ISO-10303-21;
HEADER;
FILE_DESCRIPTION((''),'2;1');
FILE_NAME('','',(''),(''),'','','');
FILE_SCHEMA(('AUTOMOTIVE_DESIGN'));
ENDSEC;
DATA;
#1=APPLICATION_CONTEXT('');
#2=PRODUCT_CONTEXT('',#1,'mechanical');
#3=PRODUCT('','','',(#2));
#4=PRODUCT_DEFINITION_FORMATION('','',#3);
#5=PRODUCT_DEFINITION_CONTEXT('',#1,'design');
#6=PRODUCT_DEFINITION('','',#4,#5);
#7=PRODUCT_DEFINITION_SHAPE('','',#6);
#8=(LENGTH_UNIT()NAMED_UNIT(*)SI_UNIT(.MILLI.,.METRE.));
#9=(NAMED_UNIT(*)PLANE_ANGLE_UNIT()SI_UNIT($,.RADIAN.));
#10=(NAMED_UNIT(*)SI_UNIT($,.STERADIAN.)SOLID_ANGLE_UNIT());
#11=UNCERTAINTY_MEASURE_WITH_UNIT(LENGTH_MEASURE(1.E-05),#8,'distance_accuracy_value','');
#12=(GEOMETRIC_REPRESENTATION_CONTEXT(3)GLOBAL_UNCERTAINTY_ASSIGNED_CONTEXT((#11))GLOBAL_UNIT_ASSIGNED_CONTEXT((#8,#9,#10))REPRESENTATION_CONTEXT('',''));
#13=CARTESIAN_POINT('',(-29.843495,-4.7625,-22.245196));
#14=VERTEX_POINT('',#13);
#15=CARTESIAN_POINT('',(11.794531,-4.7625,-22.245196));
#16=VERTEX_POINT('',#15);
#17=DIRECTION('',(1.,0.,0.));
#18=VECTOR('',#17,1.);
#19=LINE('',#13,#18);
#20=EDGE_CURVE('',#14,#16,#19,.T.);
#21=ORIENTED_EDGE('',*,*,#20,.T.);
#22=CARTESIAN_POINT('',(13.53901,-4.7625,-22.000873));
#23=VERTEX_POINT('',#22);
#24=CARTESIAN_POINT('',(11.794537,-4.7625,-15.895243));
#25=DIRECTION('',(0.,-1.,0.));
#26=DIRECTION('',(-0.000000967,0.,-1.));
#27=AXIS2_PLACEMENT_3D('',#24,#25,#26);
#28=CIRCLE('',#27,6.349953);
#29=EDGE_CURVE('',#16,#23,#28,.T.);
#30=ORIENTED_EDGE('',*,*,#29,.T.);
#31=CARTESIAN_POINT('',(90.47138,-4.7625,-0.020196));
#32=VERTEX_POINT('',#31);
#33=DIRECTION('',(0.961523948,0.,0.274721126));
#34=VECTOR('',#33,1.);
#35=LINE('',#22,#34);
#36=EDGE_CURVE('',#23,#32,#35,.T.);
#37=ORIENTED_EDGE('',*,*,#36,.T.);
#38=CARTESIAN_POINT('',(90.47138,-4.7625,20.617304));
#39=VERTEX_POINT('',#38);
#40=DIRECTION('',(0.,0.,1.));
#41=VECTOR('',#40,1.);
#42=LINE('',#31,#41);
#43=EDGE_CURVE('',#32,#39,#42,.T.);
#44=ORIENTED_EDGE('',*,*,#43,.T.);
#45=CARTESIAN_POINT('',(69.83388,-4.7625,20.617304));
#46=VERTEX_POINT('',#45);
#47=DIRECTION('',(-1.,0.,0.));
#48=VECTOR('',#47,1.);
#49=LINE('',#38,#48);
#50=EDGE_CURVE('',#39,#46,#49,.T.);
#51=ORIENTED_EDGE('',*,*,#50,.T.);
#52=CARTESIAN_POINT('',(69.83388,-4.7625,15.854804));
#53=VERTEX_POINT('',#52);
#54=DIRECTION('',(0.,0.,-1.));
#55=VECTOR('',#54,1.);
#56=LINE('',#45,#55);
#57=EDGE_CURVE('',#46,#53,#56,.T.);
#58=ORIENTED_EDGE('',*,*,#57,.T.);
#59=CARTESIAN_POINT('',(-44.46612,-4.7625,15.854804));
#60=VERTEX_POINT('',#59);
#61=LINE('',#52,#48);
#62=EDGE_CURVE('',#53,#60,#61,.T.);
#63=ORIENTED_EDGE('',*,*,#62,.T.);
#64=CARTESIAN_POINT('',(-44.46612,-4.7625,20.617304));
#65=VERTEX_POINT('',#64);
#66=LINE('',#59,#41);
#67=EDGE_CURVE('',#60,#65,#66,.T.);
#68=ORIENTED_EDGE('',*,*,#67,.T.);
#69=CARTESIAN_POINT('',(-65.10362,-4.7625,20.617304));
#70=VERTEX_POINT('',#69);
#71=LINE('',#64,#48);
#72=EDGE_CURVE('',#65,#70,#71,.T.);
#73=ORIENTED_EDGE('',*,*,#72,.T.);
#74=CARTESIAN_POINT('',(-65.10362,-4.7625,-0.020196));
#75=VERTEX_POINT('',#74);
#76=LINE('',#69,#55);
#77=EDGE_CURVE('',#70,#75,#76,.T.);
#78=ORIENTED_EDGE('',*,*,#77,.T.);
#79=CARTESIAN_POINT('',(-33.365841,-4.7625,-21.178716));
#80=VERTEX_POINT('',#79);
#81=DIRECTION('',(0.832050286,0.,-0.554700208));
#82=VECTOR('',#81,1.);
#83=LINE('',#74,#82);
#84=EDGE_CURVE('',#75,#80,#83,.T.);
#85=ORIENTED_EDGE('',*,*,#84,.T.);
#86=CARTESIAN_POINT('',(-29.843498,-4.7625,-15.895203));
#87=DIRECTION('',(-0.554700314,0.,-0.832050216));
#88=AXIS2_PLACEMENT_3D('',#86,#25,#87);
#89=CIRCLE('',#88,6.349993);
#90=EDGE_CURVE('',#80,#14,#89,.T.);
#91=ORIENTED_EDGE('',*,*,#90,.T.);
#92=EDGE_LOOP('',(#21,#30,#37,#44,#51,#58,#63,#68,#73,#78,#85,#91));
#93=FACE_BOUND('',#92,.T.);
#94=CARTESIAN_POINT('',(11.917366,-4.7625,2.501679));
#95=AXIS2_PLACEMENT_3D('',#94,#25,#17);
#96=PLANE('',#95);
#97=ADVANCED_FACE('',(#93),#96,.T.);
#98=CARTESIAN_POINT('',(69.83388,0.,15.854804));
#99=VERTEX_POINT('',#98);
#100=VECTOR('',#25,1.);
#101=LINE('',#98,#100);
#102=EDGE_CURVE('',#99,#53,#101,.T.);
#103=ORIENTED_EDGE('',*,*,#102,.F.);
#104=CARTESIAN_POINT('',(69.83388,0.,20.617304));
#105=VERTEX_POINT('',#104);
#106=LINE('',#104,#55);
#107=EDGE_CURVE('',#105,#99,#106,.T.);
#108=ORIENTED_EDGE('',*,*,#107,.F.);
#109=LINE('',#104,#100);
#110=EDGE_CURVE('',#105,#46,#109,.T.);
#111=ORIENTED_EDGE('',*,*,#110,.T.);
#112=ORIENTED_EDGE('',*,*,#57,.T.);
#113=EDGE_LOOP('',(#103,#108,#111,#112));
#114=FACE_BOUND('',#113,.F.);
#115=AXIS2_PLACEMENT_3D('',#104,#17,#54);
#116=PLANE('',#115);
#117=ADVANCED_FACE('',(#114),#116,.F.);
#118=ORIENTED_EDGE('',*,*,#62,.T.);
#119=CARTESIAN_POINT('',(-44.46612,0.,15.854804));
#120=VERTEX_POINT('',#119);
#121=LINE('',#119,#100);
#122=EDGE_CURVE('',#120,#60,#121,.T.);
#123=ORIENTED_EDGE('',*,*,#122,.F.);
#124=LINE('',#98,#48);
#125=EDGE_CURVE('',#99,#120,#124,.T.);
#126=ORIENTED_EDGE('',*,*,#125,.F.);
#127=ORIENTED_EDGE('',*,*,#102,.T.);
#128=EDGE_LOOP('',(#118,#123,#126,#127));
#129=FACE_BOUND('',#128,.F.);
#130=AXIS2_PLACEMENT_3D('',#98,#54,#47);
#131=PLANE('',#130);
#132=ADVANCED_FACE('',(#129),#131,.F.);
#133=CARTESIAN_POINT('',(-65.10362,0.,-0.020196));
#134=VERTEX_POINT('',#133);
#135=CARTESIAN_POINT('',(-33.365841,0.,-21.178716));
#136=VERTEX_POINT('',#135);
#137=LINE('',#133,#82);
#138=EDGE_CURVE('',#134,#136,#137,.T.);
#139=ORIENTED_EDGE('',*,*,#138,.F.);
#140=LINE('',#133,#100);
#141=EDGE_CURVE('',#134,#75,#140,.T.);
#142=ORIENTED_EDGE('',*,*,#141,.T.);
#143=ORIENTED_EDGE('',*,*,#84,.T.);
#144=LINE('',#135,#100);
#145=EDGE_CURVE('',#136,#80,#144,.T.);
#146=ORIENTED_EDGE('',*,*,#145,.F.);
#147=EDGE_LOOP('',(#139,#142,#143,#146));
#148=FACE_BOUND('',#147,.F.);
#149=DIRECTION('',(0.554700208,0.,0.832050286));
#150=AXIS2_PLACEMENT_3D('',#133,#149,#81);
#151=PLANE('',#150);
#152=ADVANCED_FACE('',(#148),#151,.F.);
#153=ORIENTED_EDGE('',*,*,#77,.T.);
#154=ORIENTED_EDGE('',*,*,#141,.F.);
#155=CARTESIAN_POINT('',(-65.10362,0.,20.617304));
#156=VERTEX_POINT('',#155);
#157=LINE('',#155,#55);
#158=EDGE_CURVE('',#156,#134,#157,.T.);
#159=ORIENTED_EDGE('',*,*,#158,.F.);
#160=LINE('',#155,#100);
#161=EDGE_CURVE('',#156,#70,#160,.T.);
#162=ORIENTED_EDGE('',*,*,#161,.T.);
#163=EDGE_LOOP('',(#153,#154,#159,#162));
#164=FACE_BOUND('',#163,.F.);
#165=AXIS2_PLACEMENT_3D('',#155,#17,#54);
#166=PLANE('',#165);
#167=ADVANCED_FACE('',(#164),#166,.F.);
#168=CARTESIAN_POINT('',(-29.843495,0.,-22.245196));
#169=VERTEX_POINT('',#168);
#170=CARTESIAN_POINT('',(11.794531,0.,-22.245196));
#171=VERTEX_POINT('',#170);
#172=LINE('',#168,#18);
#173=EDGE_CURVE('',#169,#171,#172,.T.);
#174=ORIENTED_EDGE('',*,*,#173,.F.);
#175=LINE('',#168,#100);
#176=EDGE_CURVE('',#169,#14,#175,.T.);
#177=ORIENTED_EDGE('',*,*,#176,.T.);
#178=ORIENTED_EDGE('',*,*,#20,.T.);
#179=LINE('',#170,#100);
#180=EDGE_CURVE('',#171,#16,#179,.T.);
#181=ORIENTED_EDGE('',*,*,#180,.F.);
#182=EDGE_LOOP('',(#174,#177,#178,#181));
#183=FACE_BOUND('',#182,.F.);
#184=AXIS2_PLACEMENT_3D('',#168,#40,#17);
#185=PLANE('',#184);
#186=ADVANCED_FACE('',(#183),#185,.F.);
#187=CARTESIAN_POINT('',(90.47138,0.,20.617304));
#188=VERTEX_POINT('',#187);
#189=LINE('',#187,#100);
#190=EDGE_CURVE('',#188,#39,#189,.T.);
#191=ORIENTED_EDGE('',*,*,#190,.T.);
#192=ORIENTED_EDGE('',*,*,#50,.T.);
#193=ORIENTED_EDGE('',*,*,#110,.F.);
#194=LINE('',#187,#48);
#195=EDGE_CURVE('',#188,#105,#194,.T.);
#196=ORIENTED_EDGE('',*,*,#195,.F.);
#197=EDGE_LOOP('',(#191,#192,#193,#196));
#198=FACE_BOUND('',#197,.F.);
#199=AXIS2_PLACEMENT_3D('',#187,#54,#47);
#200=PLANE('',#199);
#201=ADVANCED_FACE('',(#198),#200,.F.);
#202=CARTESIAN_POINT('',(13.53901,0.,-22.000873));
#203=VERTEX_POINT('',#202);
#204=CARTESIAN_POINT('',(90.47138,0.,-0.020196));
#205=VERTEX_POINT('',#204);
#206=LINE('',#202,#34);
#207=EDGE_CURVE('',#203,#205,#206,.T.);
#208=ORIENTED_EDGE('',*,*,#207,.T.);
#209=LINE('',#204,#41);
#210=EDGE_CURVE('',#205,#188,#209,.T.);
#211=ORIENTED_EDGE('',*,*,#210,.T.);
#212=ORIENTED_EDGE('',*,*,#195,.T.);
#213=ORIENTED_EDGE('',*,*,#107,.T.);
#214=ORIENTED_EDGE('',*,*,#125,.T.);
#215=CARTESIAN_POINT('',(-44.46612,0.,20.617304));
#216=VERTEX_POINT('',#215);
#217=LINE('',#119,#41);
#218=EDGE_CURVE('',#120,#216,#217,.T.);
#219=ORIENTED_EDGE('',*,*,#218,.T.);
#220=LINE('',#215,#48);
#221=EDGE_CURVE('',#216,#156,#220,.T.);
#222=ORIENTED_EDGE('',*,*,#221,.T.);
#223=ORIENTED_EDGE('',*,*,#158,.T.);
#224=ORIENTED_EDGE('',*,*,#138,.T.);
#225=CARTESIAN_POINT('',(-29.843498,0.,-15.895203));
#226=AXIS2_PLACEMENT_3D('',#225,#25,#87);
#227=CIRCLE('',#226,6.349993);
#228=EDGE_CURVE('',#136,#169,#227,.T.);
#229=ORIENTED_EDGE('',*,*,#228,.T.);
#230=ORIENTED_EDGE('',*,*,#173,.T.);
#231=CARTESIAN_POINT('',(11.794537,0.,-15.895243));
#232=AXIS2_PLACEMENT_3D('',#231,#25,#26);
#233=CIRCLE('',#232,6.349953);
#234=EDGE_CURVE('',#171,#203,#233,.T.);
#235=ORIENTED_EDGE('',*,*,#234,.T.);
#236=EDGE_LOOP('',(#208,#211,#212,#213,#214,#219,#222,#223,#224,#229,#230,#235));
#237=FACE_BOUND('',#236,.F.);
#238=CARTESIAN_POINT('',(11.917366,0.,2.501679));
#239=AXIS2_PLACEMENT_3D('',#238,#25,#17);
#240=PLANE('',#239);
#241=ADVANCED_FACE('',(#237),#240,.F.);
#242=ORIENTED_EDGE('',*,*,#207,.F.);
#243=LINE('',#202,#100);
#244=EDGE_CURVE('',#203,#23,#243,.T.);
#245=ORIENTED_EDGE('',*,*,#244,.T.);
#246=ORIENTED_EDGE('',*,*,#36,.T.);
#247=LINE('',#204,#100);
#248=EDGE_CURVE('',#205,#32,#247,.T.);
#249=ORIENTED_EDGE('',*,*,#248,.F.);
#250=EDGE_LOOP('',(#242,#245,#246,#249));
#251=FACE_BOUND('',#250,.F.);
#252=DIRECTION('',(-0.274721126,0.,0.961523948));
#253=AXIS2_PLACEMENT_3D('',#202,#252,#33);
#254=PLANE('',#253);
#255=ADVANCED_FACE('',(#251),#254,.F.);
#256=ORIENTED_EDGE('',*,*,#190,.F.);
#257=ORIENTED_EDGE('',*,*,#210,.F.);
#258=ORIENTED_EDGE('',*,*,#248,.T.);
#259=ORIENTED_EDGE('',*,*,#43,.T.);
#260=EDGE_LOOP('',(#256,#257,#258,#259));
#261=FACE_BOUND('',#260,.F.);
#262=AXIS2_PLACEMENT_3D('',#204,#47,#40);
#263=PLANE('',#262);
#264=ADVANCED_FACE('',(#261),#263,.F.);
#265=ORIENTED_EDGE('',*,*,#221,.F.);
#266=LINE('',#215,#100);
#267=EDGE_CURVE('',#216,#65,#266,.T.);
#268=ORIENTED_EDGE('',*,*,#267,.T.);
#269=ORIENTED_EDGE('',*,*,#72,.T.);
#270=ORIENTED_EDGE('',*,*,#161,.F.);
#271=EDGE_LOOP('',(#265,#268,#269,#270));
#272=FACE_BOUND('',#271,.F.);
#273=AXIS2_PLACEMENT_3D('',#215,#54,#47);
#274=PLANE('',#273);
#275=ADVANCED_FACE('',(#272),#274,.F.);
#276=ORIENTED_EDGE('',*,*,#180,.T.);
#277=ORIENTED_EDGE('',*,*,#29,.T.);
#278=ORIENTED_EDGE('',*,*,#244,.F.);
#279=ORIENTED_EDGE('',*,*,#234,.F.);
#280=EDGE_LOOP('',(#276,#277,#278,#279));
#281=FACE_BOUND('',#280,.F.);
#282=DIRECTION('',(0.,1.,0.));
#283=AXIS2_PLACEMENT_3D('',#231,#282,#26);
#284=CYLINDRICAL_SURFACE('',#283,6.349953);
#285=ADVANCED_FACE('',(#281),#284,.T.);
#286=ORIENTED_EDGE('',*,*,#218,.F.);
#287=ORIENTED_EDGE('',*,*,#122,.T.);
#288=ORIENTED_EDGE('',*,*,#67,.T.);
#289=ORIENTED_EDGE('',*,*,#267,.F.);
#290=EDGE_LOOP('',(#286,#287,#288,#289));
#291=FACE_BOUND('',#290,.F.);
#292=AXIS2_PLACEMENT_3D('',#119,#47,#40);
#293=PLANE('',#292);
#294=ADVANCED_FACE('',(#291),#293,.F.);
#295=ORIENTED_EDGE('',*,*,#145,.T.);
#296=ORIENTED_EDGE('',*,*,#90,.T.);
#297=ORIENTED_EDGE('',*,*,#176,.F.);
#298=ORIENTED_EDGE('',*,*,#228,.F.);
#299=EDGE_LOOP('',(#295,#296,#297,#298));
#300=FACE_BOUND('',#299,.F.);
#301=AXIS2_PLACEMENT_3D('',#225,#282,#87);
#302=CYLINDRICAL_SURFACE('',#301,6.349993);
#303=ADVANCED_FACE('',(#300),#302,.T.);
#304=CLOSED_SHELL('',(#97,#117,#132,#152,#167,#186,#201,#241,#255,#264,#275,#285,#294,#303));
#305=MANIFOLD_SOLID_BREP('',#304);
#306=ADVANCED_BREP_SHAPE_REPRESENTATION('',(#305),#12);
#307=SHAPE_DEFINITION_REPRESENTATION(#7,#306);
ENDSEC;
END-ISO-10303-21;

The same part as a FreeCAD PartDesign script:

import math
import FreeCAD as App
import Part
import Sketcher

V = App.Vector
Q = App.Units.Quantity

doc = App.newDocument("Part")
params = doc.addObject("Spreadsheet::Sheet", "Params")
for row, (alias, value) in enumerate([
    ("sketch1_width", "4.5 in"),
    ("sketch1_width2", "0.8125 in"),
    ("sketch1_height", "0.1875 in"),
    ("pad1_length", "0.1875 in"),
], start=1):
    params.set(f"A{row}", alias)
    params.set(f"B{row}", "=" + value)
    params.setAlias(f"B{row}", alias)

body = doc.addObject("PartDesign::Body", "Body")

# Sketch on XZ plane
sketch1 = doc.addObject("Sketcher::SketchObject", "Sketch")
body.addObject(sketch1)
sketch1.AttachmentSupport = (doc.XZ_Plane, [""])
sketch1.MapMode = "FlatFace"
sketch1.addGeometry([
    Part.LineSegment(V(-44.5, 20.6, 0), V(-65.1, 20.6, 0)),  # 0
    Part.LineSegment(V(-65.1, 20.6, 0), V(-65.1, 0, 0)),  # 1
    Part.LineSegment(V(-65.1, 0, 0), V(-33.4, -21.2, 0)),  # 2
    Part.ArcOfCircle(Part.Circle(V(-29.8, -15.9, 0), V(0, 0, 1), 6.3), math.radians(-124), math.radians(-90)),  # 3
    Part.LineSegment(V(-29.8, -22.2, 0), V(11.8, -22.2, 0)),  # 4
    Part.ArcOfCircle(Part.Circle(V(11.8, -15.9, 0), V(0, 0, 1), 6.3), math.radians(-90), math.radians(-74.05)),  # 5
    Part.LineSegment(V(13.5, -22, 0), V(90.5, 0, 0)),  # 6
    Part.LineSegment(V(90.5, 0, 0), V(90.5, 20.6, 0)),  # 7
    Part.LineSegment(V(90.5, 20.6, 0), V(69.8, 20.6, 0)),  # 8
    Part.LineSegment(V(69.8, 20.6, 0), V(69.8, 15.9, 0)),  # 9
    Part.LineSegment(V(69.8, 15.9, 0), V(-44.5, 15.9, 0)),  # 10
    Part.LineSegment(V(-44.5, 15.9, 0), V(-44.5, 20.6, 0)),  # 11
], False)
sketch1.addConstraint([
    Sketcher.Constraint("Coincident", 0, 2, 1, 1),
    Sketcher.Constraint("Coincident", 1, 2, 2, 1),
    Sketcher.Constraint("Tangent", 2, 2, 3, 1),
    Sketcher.Constraint("Tangent", 3, 2, 4, 1),
    Sketcher.Constraint("Tangent", 4, 2, 5, 1),
    Sketcher.Constraint("Tangent", 5, 2, 6, 1),
    Sketcher.Constraint("Coincident", 6, 2, 7, 1),
    Sketcher.Constraint("Coincident", 7, 2, 8, 1),
    Sketcher.Constraint("Coincident", 8, 2, 9, 1),
    Sketcher.Constraint("Coincident", 9, 2, 10, 1),
    Sketcher.Constraint("Coincident", 10, 2, 11, 1),
    Sketcher.Constraint("Coincident", 11, 2, 0, 1),
    Sketcher.Constraint("Horizontal", 0),
    Sketcher.Constraint("Vertical", 1),
    Sketcher.Constraint("Horizontal", 4),
    Sketcher.Constraint("Vertical", 7),
    Sketcher.Constraint("Horizontal", 8),
    Sketcher.Constraint("Vertical", 9),
    Sketcher.Constraint("Horizontal", 10),
    Sketcher.Constraint("Vertical", 11),
    Sketcher.Constraint("Horizontal", 1, 2, 6, 2),
    Sketcher.Constraint("Horizontal", 0, 2, 7, 2),
    Sketcher.Constraint("Equal", 0, 8),
    Sketcher.Constraint("Equal", 8, 1),
    Sketcher.Constraint("DistanceX", 10, 2, 10, 1, Q("4.5 in")),
    Sketcher.Constraint("DistanceY", 3, 2, 10, 2, Q("1.5 in")),
    Sketcher.Constraint("DistanceX", 0, 2, 0, 1, Q("0.8125 in")),
    Sketcher.Constraint("DistanceY", 9, 2, 9, 1, Q("0.1875 in")),
    Sketcher.Constraint("Radius", 3, Q("6.349993 mm")),
    Sketcher.Constraint("Radius", 5, Q("6.349953 mm")),
    Sketcher.Constraint("DistanceX", 4, 1, 4, 2, Q("41.638026 mm")),
    Sketcher.Constraint("DistanceX", 0, 2, -1, 1, Q("65.10362 mm")),
    Sketcher.Constraint("DistanceX", 2, 2, -1, 1, Q("33.365841 mm")),
    Sketcher.Constraint("DistanceY", 3, 3, -1, 1, Q("15.895203 mm")),
])
sketch1.setExpression("Constraints[24]", "Params.sketch1_width")
sketch1.setExpression("Constraints[26]", "Params.sketch1_width2")
sketch1.setExpression("Constraints[27]", "Params.sketch1_height")
pad1 = doc.addObject("PartDesign::Pad", "Pad")
body.addObject(pad1)
pad1.Profile = sketch1
pad1.setExpression("Length", "Params.pad1_length")

doc.recompute()
